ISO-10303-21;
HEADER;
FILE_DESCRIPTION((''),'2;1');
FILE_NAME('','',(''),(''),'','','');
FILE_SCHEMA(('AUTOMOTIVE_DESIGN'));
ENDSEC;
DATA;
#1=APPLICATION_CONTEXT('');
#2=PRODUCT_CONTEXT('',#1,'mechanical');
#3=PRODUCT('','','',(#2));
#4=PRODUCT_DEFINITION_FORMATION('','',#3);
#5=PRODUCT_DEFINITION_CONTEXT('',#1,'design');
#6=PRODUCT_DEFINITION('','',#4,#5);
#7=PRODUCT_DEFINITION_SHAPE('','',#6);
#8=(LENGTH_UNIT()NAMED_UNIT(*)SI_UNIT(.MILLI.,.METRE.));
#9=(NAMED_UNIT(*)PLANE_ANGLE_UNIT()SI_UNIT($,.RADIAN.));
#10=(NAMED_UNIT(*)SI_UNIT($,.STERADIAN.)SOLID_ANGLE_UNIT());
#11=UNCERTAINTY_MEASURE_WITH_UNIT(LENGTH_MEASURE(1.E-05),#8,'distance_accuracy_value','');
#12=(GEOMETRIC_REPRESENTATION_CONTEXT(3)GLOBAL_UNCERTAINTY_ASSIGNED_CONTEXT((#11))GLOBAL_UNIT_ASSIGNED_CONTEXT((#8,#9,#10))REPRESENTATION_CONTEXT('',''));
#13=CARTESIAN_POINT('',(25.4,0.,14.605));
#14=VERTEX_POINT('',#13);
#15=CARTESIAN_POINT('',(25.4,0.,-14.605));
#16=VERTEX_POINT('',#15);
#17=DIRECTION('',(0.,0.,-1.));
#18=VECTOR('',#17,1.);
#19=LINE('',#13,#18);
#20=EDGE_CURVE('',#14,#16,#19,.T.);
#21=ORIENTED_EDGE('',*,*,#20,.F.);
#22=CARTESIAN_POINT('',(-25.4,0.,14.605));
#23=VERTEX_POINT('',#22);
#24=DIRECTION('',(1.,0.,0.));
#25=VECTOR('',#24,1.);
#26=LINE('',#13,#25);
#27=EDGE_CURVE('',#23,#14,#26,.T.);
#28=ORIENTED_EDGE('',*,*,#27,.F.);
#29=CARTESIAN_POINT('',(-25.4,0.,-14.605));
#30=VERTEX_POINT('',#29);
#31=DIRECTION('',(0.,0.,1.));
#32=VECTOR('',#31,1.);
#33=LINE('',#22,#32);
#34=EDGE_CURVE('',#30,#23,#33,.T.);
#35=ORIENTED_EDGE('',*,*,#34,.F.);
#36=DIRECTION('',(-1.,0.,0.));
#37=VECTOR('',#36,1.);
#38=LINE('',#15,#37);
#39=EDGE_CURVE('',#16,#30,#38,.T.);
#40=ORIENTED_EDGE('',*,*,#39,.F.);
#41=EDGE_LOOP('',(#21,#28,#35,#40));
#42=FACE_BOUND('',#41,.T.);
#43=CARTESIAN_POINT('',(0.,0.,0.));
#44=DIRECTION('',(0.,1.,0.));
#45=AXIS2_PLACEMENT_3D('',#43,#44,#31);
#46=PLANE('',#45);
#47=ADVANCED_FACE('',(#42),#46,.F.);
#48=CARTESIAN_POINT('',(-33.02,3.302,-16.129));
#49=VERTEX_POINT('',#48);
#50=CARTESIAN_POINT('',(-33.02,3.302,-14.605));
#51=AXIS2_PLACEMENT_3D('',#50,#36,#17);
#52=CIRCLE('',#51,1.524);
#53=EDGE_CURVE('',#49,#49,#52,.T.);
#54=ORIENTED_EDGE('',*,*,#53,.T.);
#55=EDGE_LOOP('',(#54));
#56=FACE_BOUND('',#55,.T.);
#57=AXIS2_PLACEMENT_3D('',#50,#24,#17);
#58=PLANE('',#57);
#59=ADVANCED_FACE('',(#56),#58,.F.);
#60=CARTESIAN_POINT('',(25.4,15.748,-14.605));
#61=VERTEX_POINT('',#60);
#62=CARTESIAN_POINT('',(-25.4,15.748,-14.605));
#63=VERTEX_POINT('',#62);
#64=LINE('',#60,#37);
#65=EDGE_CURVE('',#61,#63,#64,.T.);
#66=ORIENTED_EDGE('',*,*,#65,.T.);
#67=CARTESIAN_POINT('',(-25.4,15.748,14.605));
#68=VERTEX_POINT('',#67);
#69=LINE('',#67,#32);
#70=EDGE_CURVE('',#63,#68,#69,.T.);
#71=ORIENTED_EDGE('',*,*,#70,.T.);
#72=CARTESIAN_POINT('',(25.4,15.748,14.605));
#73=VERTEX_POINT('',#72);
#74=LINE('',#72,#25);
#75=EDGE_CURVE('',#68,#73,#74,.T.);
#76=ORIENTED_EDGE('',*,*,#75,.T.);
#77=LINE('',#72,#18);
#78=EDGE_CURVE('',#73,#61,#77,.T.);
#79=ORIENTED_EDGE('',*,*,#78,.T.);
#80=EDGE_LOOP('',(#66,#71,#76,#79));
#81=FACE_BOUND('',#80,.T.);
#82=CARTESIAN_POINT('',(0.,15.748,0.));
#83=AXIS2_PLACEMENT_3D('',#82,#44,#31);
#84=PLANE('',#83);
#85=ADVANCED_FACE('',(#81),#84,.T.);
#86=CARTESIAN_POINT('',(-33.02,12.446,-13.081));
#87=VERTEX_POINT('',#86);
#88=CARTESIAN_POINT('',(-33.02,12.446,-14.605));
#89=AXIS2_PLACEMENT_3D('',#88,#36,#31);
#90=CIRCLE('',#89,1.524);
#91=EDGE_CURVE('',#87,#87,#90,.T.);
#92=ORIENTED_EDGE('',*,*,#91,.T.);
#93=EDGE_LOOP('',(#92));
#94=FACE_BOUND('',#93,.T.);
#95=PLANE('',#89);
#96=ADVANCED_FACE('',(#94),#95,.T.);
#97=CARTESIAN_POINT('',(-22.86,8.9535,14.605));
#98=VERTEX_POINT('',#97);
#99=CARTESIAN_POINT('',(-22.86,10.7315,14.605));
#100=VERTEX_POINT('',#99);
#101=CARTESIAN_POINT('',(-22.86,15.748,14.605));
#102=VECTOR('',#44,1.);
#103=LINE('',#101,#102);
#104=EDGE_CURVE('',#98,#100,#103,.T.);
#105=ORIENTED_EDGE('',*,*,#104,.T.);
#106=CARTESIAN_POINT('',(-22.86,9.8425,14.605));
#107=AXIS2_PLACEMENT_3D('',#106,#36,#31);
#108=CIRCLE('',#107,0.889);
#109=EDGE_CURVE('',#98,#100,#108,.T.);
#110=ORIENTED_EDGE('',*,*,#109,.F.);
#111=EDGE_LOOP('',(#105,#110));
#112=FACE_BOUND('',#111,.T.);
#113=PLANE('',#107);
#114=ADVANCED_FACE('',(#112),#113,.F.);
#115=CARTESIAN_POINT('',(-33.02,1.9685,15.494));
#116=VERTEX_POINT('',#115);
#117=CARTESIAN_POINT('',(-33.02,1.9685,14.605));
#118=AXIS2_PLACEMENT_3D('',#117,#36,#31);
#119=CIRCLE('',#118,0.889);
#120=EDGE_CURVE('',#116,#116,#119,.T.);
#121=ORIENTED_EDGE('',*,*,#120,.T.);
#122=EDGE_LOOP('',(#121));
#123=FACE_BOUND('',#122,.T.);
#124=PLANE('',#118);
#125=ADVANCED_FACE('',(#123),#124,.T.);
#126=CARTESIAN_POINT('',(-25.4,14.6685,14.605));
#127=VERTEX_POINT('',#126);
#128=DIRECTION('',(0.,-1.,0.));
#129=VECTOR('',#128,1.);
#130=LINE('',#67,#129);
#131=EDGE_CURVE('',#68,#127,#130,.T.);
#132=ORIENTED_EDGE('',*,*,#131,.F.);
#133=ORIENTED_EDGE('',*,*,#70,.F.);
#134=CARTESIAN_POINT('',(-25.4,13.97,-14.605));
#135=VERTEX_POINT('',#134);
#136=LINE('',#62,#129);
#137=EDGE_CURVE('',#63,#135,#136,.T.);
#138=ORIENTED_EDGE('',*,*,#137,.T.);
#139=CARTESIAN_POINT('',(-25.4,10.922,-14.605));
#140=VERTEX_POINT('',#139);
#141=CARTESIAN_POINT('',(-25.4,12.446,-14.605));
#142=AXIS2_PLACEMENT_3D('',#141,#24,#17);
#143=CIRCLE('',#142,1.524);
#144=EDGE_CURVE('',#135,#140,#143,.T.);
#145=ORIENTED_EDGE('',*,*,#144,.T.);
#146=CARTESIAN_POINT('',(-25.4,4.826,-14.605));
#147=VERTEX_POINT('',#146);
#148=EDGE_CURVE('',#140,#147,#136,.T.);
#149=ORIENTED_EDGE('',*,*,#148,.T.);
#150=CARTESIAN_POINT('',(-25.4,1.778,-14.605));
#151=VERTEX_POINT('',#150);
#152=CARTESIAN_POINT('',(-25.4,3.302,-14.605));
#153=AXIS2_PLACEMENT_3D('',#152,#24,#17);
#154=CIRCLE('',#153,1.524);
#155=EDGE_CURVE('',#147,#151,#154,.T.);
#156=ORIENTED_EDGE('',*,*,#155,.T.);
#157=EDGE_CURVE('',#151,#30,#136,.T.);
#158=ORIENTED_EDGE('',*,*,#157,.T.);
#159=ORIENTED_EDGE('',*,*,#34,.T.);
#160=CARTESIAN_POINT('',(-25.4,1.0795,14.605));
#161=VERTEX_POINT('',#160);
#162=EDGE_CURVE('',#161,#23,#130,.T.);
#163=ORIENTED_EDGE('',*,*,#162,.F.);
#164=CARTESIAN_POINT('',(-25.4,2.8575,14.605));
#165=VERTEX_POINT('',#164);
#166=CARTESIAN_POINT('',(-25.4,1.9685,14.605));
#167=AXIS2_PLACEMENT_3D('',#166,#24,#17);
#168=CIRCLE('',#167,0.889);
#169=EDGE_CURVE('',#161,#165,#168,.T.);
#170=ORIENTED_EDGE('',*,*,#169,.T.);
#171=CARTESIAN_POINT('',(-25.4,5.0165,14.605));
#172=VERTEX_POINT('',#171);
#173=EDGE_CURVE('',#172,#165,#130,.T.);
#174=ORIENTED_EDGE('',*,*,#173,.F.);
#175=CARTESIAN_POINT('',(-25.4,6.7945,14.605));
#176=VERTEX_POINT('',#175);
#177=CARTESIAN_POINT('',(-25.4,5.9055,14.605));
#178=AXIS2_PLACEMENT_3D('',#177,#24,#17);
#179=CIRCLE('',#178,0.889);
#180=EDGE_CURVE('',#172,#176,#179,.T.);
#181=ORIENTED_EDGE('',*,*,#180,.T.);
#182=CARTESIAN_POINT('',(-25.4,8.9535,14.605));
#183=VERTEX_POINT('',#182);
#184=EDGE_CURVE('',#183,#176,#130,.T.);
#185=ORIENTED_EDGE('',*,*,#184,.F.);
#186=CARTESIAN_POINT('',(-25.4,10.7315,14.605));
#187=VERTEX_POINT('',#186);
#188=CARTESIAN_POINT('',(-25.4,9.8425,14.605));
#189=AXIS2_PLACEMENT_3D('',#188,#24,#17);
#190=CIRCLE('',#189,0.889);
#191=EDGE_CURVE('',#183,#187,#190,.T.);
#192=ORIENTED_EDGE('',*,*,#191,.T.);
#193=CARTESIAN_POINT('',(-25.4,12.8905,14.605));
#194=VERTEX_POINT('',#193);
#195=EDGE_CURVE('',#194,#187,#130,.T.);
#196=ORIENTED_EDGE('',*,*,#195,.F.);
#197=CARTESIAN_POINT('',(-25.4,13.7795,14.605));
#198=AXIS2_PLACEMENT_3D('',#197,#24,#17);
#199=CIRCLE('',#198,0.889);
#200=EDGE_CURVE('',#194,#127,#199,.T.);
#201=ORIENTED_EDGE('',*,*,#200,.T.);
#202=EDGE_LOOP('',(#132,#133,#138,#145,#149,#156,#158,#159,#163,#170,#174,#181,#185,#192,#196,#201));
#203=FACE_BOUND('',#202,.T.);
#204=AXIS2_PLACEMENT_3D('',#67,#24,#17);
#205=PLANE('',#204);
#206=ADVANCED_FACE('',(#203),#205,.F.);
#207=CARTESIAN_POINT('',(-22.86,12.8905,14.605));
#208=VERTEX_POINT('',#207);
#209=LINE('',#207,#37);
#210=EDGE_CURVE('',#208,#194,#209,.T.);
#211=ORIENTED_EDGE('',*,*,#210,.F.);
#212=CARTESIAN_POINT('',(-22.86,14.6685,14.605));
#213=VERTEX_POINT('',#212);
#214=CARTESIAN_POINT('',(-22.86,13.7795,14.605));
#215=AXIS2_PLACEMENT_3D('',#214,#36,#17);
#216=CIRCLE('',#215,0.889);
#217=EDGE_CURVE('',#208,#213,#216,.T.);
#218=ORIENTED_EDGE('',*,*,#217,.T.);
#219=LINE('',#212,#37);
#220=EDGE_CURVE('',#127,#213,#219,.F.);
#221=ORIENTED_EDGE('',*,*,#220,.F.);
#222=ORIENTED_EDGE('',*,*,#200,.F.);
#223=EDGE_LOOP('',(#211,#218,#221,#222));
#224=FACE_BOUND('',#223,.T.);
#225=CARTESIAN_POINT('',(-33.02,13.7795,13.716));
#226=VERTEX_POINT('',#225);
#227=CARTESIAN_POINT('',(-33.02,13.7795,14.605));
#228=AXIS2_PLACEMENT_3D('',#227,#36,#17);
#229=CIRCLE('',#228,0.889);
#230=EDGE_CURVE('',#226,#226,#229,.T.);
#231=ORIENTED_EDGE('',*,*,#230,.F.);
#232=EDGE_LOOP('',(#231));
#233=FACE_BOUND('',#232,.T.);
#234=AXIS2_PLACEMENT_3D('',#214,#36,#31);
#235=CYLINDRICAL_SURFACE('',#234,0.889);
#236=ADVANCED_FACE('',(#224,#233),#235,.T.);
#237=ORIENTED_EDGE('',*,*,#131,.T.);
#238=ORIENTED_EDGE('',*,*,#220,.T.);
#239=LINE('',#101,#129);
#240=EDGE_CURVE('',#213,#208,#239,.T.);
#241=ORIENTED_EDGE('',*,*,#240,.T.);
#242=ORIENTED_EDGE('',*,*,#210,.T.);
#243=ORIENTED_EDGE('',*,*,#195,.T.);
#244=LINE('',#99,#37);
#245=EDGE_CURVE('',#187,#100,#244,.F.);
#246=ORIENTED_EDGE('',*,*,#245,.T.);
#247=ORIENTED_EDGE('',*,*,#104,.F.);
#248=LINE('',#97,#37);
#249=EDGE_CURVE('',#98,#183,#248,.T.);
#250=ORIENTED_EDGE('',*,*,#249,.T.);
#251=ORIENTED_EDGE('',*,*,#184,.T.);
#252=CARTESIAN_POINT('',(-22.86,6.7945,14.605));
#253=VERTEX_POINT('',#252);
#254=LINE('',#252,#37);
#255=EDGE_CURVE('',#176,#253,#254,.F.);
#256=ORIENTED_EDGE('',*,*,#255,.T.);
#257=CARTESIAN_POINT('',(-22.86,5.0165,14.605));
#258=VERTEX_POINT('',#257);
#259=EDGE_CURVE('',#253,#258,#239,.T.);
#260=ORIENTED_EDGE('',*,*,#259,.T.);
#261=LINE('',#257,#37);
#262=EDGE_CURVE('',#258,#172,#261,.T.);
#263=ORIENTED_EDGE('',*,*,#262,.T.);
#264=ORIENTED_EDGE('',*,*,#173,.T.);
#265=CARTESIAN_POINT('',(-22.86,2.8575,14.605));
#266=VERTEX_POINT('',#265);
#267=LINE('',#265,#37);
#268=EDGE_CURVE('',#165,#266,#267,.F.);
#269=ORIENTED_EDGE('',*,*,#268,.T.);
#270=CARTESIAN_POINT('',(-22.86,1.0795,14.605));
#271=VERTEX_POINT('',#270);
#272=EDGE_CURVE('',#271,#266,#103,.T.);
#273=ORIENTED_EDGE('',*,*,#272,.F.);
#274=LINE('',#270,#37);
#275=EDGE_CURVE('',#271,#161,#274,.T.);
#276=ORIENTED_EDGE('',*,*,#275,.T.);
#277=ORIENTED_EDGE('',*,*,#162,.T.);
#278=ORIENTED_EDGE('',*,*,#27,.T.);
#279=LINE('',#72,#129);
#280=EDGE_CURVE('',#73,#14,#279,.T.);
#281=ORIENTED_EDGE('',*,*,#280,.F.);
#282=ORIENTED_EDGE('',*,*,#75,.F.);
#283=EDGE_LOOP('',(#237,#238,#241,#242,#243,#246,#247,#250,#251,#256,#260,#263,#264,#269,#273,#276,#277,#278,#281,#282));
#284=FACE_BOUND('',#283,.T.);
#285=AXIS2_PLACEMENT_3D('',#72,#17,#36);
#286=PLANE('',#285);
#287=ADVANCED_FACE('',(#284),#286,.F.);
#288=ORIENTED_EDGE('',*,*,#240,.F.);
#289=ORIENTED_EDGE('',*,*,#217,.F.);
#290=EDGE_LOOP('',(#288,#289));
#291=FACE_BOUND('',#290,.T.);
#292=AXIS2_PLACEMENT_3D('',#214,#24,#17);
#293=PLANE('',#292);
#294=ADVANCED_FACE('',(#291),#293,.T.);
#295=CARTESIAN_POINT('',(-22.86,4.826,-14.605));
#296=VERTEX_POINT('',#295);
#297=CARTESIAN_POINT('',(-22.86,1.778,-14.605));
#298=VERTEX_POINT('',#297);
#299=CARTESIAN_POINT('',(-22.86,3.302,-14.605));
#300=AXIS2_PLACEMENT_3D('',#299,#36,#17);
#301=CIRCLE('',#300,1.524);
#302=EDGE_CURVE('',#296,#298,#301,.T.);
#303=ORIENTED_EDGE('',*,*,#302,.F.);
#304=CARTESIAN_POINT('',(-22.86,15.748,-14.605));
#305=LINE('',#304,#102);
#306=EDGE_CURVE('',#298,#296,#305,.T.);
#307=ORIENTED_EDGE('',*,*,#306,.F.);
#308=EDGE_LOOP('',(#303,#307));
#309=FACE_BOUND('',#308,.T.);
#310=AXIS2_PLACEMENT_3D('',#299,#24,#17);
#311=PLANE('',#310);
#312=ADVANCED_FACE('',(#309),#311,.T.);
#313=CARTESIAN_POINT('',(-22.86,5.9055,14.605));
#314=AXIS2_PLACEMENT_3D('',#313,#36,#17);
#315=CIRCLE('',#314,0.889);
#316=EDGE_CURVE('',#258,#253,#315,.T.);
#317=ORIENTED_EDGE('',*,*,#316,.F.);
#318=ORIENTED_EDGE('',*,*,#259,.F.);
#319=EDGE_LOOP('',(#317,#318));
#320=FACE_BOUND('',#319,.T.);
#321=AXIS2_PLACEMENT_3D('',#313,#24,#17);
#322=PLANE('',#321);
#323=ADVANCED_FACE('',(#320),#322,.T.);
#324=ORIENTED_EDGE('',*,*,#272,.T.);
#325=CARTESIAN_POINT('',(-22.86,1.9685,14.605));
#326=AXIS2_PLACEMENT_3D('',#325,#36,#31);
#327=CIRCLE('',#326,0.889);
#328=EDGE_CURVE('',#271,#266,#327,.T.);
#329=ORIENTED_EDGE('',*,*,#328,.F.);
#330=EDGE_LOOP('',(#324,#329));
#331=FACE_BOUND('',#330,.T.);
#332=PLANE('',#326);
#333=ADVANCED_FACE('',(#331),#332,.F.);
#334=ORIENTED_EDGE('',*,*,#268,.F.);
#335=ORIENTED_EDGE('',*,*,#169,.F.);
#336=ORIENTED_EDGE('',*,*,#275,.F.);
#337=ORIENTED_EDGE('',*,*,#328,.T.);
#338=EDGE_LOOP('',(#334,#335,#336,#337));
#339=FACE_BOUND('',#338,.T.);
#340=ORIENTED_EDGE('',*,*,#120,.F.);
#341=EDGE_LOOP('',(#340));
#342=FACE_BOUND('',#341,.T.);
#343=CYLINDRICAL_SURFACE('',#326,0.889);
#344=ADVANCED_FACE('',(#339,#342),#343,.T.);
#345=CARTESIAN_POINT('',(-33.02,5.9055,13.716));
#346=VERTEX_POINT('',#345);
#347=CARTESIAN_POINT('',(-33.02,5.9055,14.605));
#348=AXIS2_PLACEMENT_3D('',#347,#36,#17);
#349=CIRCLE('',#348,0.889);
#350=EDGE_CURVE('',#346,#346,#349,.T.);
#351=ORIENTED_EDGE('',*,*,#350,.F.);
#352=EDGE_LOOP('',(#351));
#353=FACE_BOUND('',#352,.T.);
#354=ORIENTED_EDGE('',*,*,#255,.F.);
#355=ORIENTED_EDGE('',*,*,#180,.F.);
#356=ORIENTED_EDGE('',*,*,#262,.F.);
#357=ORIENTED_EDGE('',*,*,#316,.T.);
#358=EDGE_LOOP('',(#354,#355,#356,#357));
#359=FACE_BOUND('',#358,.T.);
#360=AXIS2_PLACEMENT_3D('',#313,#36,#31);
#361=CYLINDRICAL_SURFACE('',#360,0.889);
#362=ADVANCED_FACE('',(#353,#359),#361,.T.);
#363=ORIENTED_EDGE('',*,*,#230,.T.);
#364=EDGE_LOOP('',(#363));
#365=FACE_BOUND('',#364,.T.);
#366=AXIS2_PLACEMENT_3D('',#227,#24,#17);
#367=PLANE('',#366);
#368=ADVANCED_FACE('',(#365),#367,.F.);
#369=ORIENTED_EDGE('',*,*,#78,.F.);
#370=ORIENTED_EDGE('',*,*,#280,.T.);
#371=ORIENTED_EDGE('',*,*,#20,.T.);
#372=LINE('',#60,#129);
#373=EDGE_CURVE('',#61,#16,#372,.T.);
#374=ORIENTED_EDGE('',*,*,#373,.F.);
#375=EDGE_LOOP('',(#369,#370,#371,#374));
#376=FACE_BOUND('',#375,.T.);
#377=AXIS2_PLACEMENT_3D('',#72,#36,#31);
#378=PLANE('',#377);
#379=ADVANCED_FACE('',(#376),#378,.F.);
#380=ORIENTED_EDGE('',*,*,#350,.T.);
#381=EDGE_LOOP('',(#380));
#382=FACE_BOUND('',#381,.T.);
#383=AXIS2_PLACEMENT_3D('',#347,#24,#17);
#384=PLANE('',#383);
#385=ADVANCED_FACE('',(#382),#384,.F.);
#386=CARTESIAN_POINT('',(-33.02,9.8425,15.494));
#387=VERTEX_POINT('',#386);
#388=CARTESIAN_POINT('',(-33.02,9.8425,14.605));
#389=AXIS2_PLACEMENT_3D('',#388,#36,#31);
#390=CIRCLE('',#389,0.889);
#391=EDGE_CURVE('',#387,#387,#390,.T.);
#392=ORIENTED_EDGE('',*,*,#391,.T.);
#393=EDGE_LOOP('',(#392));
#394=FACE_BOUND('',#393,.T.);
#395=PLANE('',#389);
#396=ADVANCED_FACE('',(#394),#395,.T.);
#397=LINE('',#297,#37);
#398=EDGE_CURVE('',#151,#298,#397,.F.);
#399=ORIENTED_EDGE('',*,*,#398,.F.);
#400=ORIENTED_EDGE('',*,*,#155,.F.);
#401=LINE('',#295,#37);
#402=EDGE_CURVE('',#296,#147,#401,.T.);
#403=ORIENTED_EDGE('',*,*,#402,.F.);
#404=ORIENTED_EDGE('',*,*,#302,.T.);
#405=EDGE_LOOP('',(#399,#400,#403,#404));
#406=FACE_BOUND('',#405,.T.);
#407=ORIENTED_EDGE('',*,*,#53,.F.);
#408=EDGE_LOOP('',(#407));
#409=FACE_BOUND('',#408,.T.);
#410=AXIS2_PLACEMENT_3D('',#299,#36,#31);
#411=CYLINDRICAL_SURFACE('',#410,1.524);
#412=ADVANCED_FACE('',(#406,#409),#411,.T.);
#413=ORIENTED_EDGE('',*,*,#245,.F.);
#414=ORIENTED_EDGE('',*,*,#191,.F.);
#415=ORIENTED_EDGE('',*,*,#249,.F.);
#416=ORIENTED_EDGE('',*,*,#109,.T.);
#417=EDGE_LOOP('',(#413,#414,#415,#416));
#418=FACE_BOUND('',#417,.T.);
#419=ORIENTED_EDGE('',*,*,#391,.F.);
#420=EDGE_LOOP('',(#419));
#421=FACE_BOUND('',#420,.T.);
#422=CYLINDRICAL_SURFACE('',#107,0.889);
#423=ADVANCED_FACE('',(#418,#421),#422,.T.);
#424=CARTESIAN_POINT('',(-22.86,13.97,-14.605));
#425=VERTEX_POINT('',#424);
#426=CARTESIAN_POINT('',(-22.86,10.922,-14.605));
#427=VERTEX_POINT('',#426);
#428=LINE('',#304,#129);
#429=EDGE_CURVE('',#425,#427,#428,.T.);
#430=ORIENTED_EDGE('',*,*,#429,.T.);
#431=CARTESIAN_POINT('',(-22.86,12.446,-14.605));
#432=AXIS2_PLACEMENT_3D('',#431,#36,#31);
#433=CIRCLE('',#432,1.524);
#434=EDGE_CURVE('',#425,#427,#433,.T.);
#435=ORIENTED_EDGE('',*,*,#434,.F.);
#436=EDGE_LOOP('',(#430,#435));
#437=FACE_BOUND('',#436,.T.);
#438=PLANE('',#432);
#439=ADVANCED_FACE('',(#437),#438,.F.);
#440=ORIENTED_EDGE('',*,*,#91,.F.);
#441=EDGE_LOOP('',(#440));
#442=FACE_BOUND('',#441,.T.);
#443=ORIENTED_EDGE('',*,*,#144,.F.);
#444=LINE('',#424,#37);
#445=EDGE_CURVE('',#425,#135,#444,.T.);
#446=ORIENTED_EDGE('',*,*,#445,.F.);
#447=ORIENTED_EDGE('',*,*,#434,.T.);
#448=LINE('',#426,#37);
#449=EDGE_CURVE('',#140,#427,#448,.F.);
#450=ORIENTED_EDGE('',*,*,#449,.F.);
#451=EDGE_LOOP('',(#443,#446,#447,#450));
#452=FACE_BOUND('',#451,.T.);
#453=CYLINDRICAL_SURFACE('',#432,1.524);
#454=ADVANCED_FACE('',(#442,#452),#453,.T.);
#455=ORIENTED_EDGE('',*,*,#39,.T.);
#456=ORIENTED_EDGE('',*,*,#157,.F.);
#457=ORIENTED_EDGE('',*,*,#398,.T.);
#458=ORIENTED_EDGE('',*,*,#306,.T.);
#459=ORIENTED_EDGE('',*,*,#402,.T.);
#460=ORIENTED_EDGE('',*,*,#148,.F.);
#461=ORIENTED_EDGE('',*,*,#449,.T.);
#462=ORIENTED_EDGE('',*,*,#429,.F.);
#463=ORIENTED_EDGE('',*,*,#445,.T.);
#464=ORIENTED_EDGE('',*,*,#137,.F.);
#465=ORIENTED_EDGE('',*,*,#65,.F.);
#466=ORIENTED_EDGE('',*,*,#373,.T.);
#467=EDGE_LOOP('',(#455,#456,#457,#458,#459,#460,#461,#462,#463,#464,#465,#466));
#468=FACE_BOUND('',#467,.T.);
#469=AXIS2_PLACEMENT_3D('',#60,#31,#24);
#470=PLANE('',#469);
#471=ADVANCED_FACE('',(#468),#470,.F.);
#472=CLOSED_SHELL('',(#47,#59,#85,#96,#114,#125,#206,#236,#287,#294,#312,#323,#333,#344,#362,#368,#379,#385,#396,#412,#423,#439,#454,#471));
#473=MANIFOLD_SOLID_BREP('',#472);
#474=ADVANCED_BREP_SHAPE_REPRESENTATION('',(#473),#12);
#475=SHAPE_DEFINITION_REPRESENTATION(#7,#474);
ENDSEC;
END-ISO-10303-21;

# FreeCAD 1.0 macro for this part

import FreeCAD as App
import Part
import Sketcher
from FreeCAD import Vector
Q = App.Units.Quantity


def add_polygon(sketch, points):
    """Adds a closed chain of lines whose ends are joined by coincident constraints."""
    first, n = sketch.GeometryCount, len(points)
    for a, b in zip(points, points[1:] + points[:1]):
        sketch.addGeometry(Part.LineSegment(App.Vector(*a, 0), App.Vector(*b, 0)), False)
    for i in range(n):
        sketch.addConstraint(Sketcher.Constraint("Coincident", first + i, 2, first + (i + 1) % n, 1))

doc = App.newDocument("Part")
body = doc.addObject("PartDesign::Body", "Body")

# Sketch on XZ plane
sketch1 = body.newObject("Sketcher::SketchObject", "Sketch")
sketch1.AttachmentSupport = (doc.getObject("XZ_Plane"), [""])
sketch1.MapMode = "FlatFace"
add_polygon(sketch1, [(-25.4, -14.605), (-25.4, 14.605), (25.4, 14.605), (25.4, -14.605)])  # lines 0-3
sketch1.addConstraint([
    Sketcher.Constraint("Vertical", 0),
    Sketcher.Constraint("Horizontal", 1),
    Sketcher.Constraint("Vertical", 2),
    Sketcher.Constraint("Horizontal", 3),
    Sketcher.Constraint("Symmetric", 0, 2, 2, 2, -1, 1),
    Sketcher.Constraint("DistanceX", 1, 1, 1, 2, Q("2 in")),
    Sketcher.Constraint("DistanceY", 0, 1, 0, 2, Q("1.15 in")),
])
pad1 = body.newObject("PartDesign::Pad", "Pad")
pad1.Profile = sketch1
pad1.Length = Q("0.62 in")
pad1.Reversed = True

# Sketch on YZ plane
sketch2 = body.newObject("Sketcher::SketchObject", "Sketch001")
sketch2.AttachmentSupport = (doc.getObject("YZ_Plane"), [""])
sketch2.MapMode = "FlatFace"
sketch2.AttachmentOffset = App.Placement(Vector(0, 0, -1 * 25.4), App.Rotation())
sketch2.addGeometry([
    Part.Circle(Vector(12.446, -14.605, 0), Vector(0, 0, 1), 1.524),  # 0
    Part.Circle(Vector(9.8425, 14.605, 0), Vector(0, 0, 1), 0.889),  # 1
    Part.Circle(Vector(13.7795, 14.605, 0), Vector(0, 0, 1), 0.889),  # 2
    Part.Circle(Vector(5.9055, 14.605, 0), Vector(0, 0, 1), 0.889),  # 3
    Part.Circle(Vector(1.9685, 14.605, 0), Vector(0, 0, 1), 0.889),  # 4
    Part.Circle(Vector(3.302, -14.605, 0), Vector(0, 0, 1), 1.524),  # 5
], False)
sketch2.addConstraint([
    Sketcher.Constraint("Equal", 1, 2),
    Sketcher.Constraint("Equal", 2, 3),
    Sketcher.Constraint("Equal", 3, 4),
    Sketcher.Constraint("Equal", 0, 5),
    Sketcher.Constraint("Horizontal", 1, 3, 2, 3),
    Sketcher.Constraint("Horizontal", 2, 3, 3, 3),
    Sketcher.Constraint("Horizontal", 3, 3, 4, 3),
    Sketcher.Constraint("Horizontal", 0, 3, 5, 3),
    Sketcher.Constraint("Diameter", 0, Q("0.12 in")),
    Sketcher.Constraint("Diameter", 1, Q("0.07 in")),
    Sketcher.Constraint("DistanceX", -1, 1, 0, 3, Q("0.49 in")),
    Sketcher.Constraint("DistanceX", -1, 1, 5, 3, Q("0.13 in")),
    Sketcher.Constraint("DistanceY", 0, 3, 1, 3, Q("1.15 in")),
    Sketcher.Constraint("DistanceX", 3, 3, 2, 3, Q("0.31 in")),
    Sketcher.Constraint("DistanceX", 4, 3, 1, 3, Q("0.31 in")),
    Sketcher.Constraint("DistanceY", 0, 3, -1, 1, Q("0.575 in")),
    Sketcher.Constraint("DistanceX", 1, 3, 2, 3, Q("0.155 in")),
    Sketcher.Constraint("DistanceX", -1, 1, 1, 3, Q("0.3875 in")),
])
pad2 = body.newObject("PartDesign::Pad", "Pad001")
pad2.Profile = sketch2
pad2.Type = "TwoLengths"
pad2.Length = Q("0.3 in")
pad2.Length2 = Q("0.1 in")
pad2.Reversed = True

doc.recompute()
